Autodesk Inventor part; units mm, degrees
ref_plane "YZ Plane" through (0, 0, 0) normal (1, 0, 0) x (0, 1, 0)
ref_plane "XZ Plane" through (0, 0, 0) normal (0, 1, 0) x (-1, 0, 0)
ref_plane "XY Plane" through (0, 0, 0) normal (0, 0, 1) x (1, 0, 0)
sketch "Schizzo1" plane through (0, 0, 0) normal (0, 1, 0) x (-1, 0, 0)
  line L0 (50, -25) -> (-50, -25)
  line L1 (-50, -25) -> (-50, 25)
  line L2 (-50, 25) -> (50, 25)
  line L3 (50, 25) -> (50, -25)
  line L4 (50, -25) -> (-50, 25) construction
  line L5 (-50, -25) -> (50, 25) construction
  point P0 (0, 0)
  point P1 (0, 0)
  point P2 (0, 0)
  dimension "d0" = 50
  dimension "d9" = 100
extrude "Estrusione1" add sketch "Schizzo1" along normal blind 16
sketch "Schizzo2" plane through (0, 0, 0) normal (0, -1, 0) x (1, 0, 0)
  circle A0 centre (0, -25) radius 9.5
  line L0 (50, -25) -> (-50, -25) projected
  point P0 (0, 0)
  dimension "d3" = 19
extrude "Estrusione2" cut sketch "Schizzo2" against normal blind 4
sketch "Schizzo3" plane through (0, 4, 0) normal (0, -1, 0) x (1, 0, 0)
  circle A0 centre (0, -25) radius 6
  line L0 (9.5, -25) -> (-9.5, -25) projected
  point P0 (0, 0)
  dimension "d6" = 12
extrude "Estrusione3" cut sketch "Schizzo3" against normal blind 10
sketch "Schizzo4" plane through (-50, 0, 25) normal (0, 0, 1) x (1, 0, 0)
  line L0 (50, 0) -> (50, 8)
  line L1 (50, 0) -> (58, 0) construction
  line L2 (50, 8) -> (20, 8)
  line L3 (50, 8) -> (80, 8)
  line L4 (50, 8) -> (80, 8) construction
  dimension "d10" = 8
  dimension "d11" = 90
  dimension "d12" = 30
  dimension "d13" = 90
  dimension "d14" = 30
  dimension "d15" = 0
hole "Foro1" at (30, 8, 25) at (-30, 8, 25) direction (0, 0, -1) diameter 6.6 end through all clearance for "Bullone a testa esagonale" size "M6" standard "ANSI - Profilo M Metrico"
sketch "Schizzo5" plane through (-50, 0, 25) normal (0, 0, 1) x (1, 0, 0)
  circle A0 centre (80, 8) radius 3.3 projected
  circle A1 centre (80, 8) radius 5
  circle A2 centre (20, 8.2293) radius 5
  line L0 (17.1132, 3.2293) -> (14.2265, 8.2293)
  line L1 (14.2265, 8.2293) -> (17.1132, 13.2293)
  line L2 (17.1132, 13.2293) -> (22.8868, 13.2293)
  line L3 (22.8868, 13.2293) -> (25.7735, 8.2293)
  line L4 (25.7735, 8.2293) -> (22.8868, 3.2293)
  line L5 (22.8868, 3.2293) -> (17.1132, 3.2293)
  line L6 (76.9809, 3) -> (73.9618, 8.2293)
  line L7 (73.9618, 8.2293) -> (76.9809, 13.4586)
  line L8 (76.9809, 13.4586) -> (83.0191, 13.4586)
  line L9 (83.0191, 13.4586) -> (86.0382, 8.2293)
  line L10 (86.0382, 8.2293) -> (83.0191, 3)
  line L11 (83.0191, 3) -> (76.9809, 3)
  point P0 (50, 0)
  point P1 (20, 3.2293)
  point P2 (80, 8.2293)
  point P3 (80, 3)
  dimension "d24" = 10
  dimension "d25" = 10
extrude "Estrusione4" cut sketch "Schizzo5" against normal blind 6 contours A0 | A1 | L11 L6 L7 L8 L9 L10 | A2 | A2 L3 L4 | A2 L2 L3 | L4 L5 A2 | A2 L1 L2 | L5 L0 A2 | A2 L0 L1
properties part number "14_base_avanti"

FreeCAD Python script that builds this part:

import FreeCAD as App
import Part
import Sketcher

V = App.Vector
Q = App.Units.Quantity


def add_polygon(sketch, points):
    """Adds a closed chain of lines whose ends are joined by coincident constraints."""
    first, n = sketch.GeometryCount, len(points)
    for a, b in zip(points, points[1:] + points[:1]):
        sketch.addGeometry(Part.LineSegment(App.Vector(*a, 0), App.Vector(*b, 0)), False)
    for i in range(n):
        sketch.addConstraint(Sketcher.Constraint("Coincident", first + i, 2, first + (i + 1) % n, 1))

doc = App.newDocument("Part")
body = doc.addObject("PartDesign::Body", "Body")

sketch1 = doc.addObject("Sketcher::SketchObject", "Sketch")
body.addObject(sketch1)
sketch1.AttachmentSupport = (doc.XZ_Plane, [""])
sketch1.MapMode = "FlatFace"
add_polygon(sketch1, [(50, -25), (-50, -25), (-50, 25), (50, 25)])
sketch1.addConstraint(Sketcher.Constraint("Horizontal", 0))
sketch1.addConstraint(Sketcher.Constraint("Vertical", 1))
sketch1.addConstraint(Sketcher.Constraint("Horizontal", 2))
sketch1.addConstraint(Sketcher.Constraint("Vertical", 3))
sketch1.addConstraint(Sketcher.Constraint("Symmetric", 0, 2, 2, 2, -1, 1))
sketch1.addConstraint(Sketcher.Constraint("DistanceX", 0, 2, 0, 1, 100.0))
sketch1.addConstraint(Sketcher.Constraint("DistanceY", 1, 1, 1, 2, 50.0))
pad1 = doc.addObject("PartDesign::Pad", "Pad")
body.addObject(pad1)
pad1.Profile = sketch1
pad1.Length = 16
pad1.Reversed = True

sketch2 = doc.addObject("Sketcher::SketchObject", "Sketch001")
body.addObject(sketch2)
sketch2.AttachmentSupport = (doc.XZ_Plane, [""])
sketch2.MapMode = "FlatFace"
sketch2.addGeometry(Part.Circle(V(0, -25, 0), V(0, 0, 1), 10), False)
sketch2.addConstraint(Sketcher.Constraint("PointOnObject", 0, 3, -2))
sketch2.addConstraint(Sketcher.Constraint("Diameter", 0, 19.0))
sketch2.addConstraint(Sketcher.Constraint("DistanceY", 0, 3, -1, 1, 25.0))
pocket1 = doc.addObject("PartDesign::Pocket", "Pocket")
body.addObject(pocket1)
pocket1.Profile = sketch2
pocket1.Length = 4

sketch3 = doc.addObject("Sketcher::SketchObject", "Sketch002")
body.addObject(sketch3)
sketch3.AttachmentSupport = (doc.XZ_Plane, [""])
sketch3.MapMode = "FlatFace"
sketch3.AttachmentOffset = App.Placement(V(0, 0, -4), App.Rotation())
sketch3.addGeometry(Part.Circle(V(0, -25, 0), V(0, 0, 1), 6), False)
sketch3.addConstraint(Sketcher.Constraint("PointOnObject", 0, 3, -2))
sketch3.addConstraint(Sketcher.Constraint("Diameter", 0, 12.0))
sketch3.addConstraint(Sketcher.Constraint("DistanceY", 0, 3, -1, 1, 25.0))
pocket2 = doc.addObject("PartDesign::Pocket", "Pocket001")
body.addObject(pocket2)
pocket2.Profile = sketch3
pocket2.Length = 10

sketch4 = doc.addObject("Sketcher::SketchObject", "Sketch003")
body.addObject(sketch4)
sketch4.AttachmentSupport = (doc.XY_Plane, [""])
sketch4.MapMode = "FlatFace"
sketch4.AttachmentOffset = App.Placement(V(0, 0, 25), App.Rotation())
sketch4.addGeometry(Part.Circle(V(30, 8, 0), V(0, 0, 1), 3.3), False)
sketch4.addGeometry(Part.Circle(V(-30, 8, 0), V(0, 0, 1), 3.3), False)
sketch4.addConstraint(Sketcher.Constraint("Equal", 0, 1))
sketch4.addConstraint(Sketcher.Constraint("Symmetric", 0, 3, 1, 3, -2))
sketch4.addConstraint(Sketcher.Constraint("Diameter", 0, 6.6))
sketch4.addConstraint(Sketcher.Constraint("DistanceX", -1, 1, 0, 3, 30.0))
sketch4.addConstraint(Sketcher.Constraint("DistanceY", -1, 1, 0, 3, 8.0))
doc.recompute()
hole = doc.addObject("PartDesign::Hole", "Hole")
body.addObject(hole)
hole.Profile = sketch4
hole.ThreadType = "None"
hole.Diameter = 6.6
hole.DepthType = "ThroughAll"

sketch5 = doc.addObject("Sketcher::SketchObject", "Sketch004")
body.addObject(sketch5)
sketch5.AttachmentSupport = (doc.XY_Plane, [""])
sketch5.MapMode = "FlatFace"
sketch5.AttachmentOffset = App.Placement(V(0, 0, 25), App.Rotation())
add_polygon(sketch5, [(27, 3), (33, 3), (36, 8), (33, 13), (27, 13), (24, 8)])
add_polygon(sketch5, [(-24, 8), (-27, 13), (-33, 13), (-36, 8), (-33, 3), (-27, 3)])
sketch5.addConstraint(Sketcher.Constraint("Horizontal", 0))
sketch5.addConstraint(Sketcher.Constraint("Horizontal", 3))
sketch5.addConstraint(Sketcher.Constraint("Horizontal", 7))
sketch5.addConstraint(Sketcher.Constraint("Horizontal", 10))
sketch5.addConstraint(Sketcher.Constraint("Parallel", 1, 4))
sketch5.addConstraint(Sketcher.Constraint("Parallel", 2, 5))
sketch5.addConstraint(Sketcher.Constraint("Parallel", 5, 6))
sketch5.addConstraint(Sketcher.Constraint("Parallel", 4, 8))
sketch5.addConstraint(Sketcher.Constraint("Parallel", 6, 9))
sketch5.addConstraint(Sketcher.Constraint("Parallel", 8, 11))
sketch5.addConstraint(Sketcher.Constraint("Horizontal", 1, 2, 4, 2))
sketch5.addConstraint(Sketcher.Constraint("Horizontal", 4, 2, 8, 2))
sketch5.addConstraint(Sketcher.Constraint("Horizontal", 8, 2, 11, 2))
sketch5.addConstraint(Sketcher.Constraint("Vertical", 0, 2, 2, 2))
sketch5.addConstraint(Sketcher.Constraint("Vertical", 3, 2, 5, 2))
sketch5.addConstraint(Sketcher.Constraint("Vertical", 7, 2, 9, 2))
sketch5.addConstraint(Sketcher.Constraint("DistanceY", 9, 2, 7, 2, 10.0))
sketch5.addConstraint(Sketcher.Constraint("Angle", 1, Q("60.0003 deg")))
sketch5.addConstraint(Sketcher.Constraint("DistanceY", -1, 1, 0, 2, 3.0))
sketch5.addConstraint(Sketcher.Constraint("DistanceX", 0, 1, 0, 2, 6.0382))
sketch5.addConstraint(Sketcher.Constraint("DistanceX", 7, 2, 7, 1, 5.7736))
sketch5.addConstraint(Sketcher.Constraint("DistanceX", -1, 1, 0, 2, 33.019))
sketch5.addConstraint(Sketcher.Constraint("DistanceX", 0, 2, 1, 2, 3.019))
sketch5.addConstraint(Sketcher.Constraint("DistanceX", 6, 2, 4, 2, 51.075))
pocket3 = doc.addObject("PartDesign::Pocket", "Pocket002")
body.addObject(pocket3)
pocket3.Profile = sketch5
pocket3.Length = 6

doc.recompute()
